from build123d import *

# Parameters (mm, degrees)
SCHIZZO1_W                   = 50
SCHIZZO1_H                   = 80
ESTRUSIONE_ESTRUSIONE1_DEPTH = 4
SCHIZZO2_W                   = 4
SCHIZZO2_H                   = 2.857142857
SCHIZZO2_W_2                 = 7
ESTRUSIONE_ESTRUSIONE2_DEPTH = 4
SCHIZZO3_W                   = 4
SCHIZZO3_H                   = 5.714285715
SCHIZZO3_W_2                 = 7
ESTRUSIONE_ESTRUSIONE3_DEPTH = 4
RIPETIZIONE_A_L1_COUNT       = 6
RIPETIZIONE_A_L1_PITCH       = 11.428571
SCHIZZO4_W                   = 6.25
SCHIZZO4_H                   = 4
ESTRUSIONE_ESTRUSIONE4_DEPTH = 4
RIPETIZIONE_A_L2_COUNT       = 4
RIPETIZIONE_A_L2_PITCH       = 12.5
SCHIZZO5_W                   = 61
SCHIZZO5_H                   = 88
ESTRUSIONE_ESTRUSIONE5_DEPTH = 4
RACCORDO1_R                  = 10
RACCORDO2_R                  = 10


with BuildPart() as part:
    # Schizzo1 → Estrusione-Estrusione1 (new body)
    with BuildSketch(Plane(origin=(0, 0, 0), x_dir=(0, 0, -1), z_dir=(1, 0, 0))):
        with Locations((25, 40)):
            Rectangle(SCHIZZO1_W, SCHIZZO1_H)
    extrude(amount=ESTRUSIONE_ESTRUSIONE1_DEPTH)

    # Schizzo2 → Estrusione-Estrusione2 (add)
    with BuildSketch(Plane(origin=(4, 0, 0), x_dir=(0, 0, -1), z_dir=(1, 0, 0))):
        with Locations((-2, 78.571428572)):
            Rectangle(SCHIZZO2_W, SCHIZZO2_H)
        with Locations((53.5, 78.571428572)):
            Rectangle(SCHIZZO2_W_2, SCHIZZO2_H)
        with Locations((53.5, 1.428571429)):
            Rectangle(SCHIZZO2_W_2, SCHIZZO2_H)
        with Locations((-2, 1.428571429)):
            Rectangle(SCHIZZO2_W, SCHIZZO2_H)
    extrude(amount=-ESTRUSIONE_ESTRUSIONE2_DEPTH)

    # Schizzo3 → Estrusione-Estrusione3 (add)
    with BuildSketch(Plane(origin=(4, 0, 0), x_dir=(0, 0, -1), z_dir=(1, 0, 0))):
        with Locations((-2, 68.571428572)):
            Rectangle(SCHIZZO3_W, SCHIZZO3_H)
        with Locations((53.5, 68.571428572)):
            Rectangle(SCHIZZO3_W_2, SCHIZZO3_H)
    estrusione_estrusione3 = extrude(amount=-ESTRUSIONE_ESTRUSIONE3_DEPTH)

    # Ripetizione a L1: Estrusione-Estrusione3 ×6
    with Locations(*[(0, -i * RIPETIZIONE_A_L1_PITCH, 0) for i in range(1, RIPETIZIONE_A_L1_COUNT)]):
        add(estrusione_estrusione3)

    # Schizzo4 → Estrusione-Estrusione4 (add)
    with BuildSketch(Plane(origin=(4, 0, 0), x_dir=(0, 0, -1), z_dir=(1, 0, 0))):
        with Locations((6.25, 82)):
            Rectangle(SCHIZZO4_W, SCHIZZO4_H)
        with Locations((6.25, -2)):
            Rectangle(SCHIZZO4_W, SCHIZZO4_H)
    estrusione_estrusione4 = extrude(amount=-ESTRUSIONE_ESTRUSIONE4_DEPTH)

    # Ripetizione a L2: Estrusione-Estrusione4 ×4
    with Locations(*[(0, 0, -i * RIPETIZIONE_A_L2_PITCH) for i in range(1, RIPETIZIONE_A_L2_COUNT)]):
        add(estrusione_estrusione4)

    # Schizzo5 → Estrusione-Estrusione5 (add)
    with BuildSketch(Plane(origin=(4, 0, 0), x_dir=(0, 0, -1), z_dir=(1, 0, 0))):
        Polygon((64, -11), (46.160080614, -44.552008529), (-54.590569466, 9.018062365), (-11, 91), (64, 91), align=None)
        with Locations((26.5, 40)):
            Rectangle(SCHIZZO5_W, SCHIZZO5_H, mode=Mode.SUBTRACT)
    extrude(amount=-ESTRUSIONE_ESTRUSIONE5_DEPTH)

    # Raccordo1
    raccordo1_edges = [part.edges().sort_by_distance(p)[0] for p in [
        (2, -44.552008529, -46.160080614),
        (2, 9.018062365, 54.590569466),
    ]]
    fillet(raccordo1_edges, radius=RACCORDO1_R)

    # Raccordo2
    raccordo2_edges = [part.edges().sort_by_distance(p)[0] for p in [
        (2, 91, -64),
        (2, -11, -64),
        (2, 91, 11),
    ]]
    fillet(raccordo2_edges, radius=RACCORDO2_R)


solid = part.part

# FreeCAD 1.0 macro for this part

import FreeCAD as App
import Part
import Sketcher
Q = App.Units.Quantity


def edges_at(feature, points):
    """Names of the edges that pass closest to the given points."""
    edges = feature.Shape.Edges
    near = lambda p: min(range(len(edges)), key=lambda i: edges[i].distToShape(Part.Vertex(*p))[0])
    return sorted({f"Edge{near(p) + 1}" for p in points})

doc = App.newDocument("Part")
body = doc.addObject("PartDesign::Body", "Body")

sketch1 = body.newObject("Sketcher::SketchObject", "Sketch")
sketch1.AttachmentSupport = (doc.getObject("YZ_Plane"), [""])
sketch1.MapMode = "FlatFace"
sketch1.addGeometry(Part.LineSegment(App.Vector(80, 0, 0), App.Vector(0, 0, 0)), False)
sketch1.addGeometry(Part.LineSegment(App.Vector(0, 0, 0), App.Vector(0, -50, 0)), False)
sketch1.addGeometry(Part.LineSegment(App.Vector(0, -50, 0), App.Vector(80, -50, 0)), False)
sketch1.addGeometry(Part.LineSegment(App.Vector(80, -50, 0), App.Vector(80, 0, 0)), False)
sketch1.addConstraint(Sketcher.Constraint("Coincident", 0, 2, 1, 1))
sketch1.addConstraint(Sketcher.Constraint("Coincident", 1, 2, 2, 1))
sketch1.addConstraint(Sketcher.Constraint("Coincident", 2, 2, 3, 1))
sketch1.addConstraint(Sketcher.Constraint("Coincident", 3, 2, 0, 1))
sketch1.addConstraint(Sketcher.Constraint("Horizontal", 0))
sketch1.addConstraint(Sketcher.Constraint("Vertical", 1))
sketch1.addConstraint(Sketcher.Constraint("Horizontal", 2))
sketch1.addConstraint(Sketcher.Constraint("Vertical", 3))
sketch1.addConstraint(Sketcher.Constraint("Coincident", 0, 2, -1, 1))
sketch1.addConstraint(Sketcher.Constraint("DistanceX", 0, 2, 0, 1, Q("80 mm")))
sketch1.addConstraint(Sketcher.Constraint("DistanceY", 1, 2, 1, 1, Q("50 mm")))
pad1 = body.newObject("PartDesign::Pad", "Pad")
pad1.Profile = sketch1
pad1.Length = 4

sketch2 = body.newObject("Sketcher::SketchObject", "Sketch001")
sketch2.AttachmentSupport = (doc.getObject("YZ_Plane"), [""])
sketch2.MapMode = "FlatFace"
sketch2.AttachmentOffset = App.Placement(App.Vector(0, 0, 4), App.Rotation())
sketch2.addGeometry(Part.LineSegment(App.Vector(80, 4, 0), App.Vector(77.1, 4, 0)), False)
sketch2.addGeometry(Part.LineSegment(App.Vector(77.1, 4, 0), App.Vector(77.1, 0, 0)), False)
sketch2.addGeometry(Part.LineSegment(App.Vector(77.1, 0, 0), App.Vector(80, 0, 0)), False)
sketch2.addGeometry(Part.LineSegment(App.Vector(80, 0, 0), App.Vector(80, 4, 0)), False)
sketch2.addGeometry(Part.LineSegment(App.Vector(80, -50, 0), App.Vector(77.1, -50, 0)), False)
sketch2.addGeometry(Part.LineSegment(App.Vector(77.1, -50, 0), App.Vector(77.1, -57, 0)), False)
sketch2.addGeometry(Part.LineSegment(App.Vector(77.1, -57, 0), App.Vector(80, -57, 0)), False)
sketch2.addGeometry(Part.LineSegment(App.Vector(80, -57, 0), App.Vector(80, -50, 0)), False)
sketch2.addGeometry(Part.LineSegment(App.Vector(2.9, -50, 0), App.Vector(0, -50, 0)), False)
sketch2.addGeometry(Part.LineSegment(App.Vector(0, -50, 0), App.Vector(0, -57, 0)), False)
sketch2.addGeometry(Part.LineSegment(App.Vector(0, -57, 0), App.Vector(2.9, -57, 0)), False)
sketch2.addGeometry(Part.LineSegment(App.Vector(2.9, -57, 0), App.Vector(2.9, -50, 0)), False)
sketch2.addGeometry(Part.LineSegment(App.Vector(2.9, 4, 0), App.Vector(0, 4, 0)), False)
sketch2.addGeometry(Part.LineSegment(App.Vector(0, 4, 0), App.Vector(0, 0, 0)), False)
sketch2.addGeometry(Part.LineSegment(App.Vector(0, 0, 0), App.Vector(2.9, 0, 0)), False)
sketch2.addGeometry(Part.LineSegment(App.Vector(2.9, 0, 0), App.Vector(2.9, 4, 0)), False)
sketch2.addConstraint(Sketcher.Constraint("Coincident", 0, 2, 1, 1))
sketch2.addConstraint(Sketcher.Constraint("Coincident", 1, 2, 2, 1))
sketch2.addConstraint(Sketcher.Constraint("Coincident", 2, 2, 3, 1))
sketch2.addConstraint(Sketcher.Constraint("Coincident", 3, 2, 0, 1))
sketch2.addConstraint(Sketcher.Constraint("Coincident", 4, 2, 5, 1))
sketch2.addConstraint(Sketcher.Constraint("Coincident", 5, 2, 6, 1))
sketch2.addConstraint(Sketcher.Constraint("Coincident", 6, 2, 7, 1))
sketch2.addConstraint(Sketcher.Constraint("Coincident", 7, 2, 4, 1))
sketch2.addConstraint(Sketcher.Constraint("Coincident", 8, 2, 9, 1))
sketch2.addConstraint(Sketcher.Constraint("Coincident", 9, 2, 10, 1))
sketch2.addConstraint(Sketcher.Constraint("Coincident", 10, 2, 11, 1))
sketch2.addConstraint(Sketcher.Constraint("Coincident", 11, 2, 8, 1))
sketch2.addConstraint(Sketcher.Constraint("Coincident", 12, 2, 13, 1))
sketch2.addConstraint(Sketcher.Constraint("Coincident", 13, 2, 14, 1))
sketch2.addConstraint(Sketcher.Constraint("Coincident", 14, 2, 15, 1))
sketch2.addConstraint(Sketcher.Constraint("Coincident", 15, 2, 12, 1))
sketch2.addConstraint(Sketcher.Constraint("Horizontal", 0))
sketch2.addConstraint(Sketcher.Constraint("Vertical", 1))
sketch2.addConstraint(Sketcher.Constraint("Horizontal", 2))
sketch2.addConstraint(Sketcher.Constraint("Vertical", 3))
sketch2.addConstraint(Sketcher.Constraint("Horizontal", 4))
sketch2.addConstraint(Sketcher.Constraint("Vertical", 5))
sketch2.addConstraint(Sketcher.Constraint("Horizontal", 6))
sketch2.addConstraint(Sketcher.Constraint("Vertical", 7))
sketch2.addConstraint(Sketcher.Constraint("Horizontal", 8))
sketch2.addConstraint(Sketcher.Constraint("Vertical", 9))
sketch2.addConstraint(Sketcher.Constraint("Horizontal", 10))
sketch2.addConstraint(Sketcher.Constraint("Vertical", 11))
sketch2.addConstraint(Sketcher.Constraint("Horizontal", 12))
sketch2.addConstraint(Sketcher.Constraint("Vertical", 13))
sketch2.addConstraint(Sketcher.Constraint("Horizontal", 14))
sketch2.addConstraint(Sketcher.Constraint("Vertical", 15))
sketch2.addConstraint(Sketcher.Constraint("Coincident", 13, 2, -1, 1))
sketch2.addConstraint(Sketcher.Constraint("PointOnObject", 1, 2, -1))
sketch2.addConstraint(Sketcher.Constraint("PointOnObject", 8, 2, -2))
sketch2.addConstraint(Sketcher.Constraint("Horizontal", 7, 2, 8, 2))
sketch2.addConstraint(Sketcher.Constraint("Horizontal", 6, 2, 9, 2))
sketch2.addConstraint(Sketcher.Constraint("Horizontal", 3, 2, 12, 2))
sketch2.addConstraint(Sketcher.Constraint("Vertical", 1, 2, 4, 2))
sketch2.addConstraint(Sketcher.Constraint("Vertical", 3, 2, 6, 2))
sketch2.addConstraint(Sketcher.Constraint("Vertical", 11, 2, 14, 2))
sketch2.addConstraint(Sketcher.Constraint("Equal", 6, 8))
sketch2.addConstraint(Sketcher.Constraint("DistanceY", 1, 2, 1, 1, Q("4 mm")))
sketch2.addConstraint(Sketcher.Constraint("DistanceY", 5, 2, 5, 1, Q("7 mm")))
sketch2.addConstraint(Sketcher.Constraint("DistanceX", -1, 1, 2, 2, Q("80 mm")))
sketch2.addConstraint(Sketcher.Constraint("DistanceY", 4, 2, -1, 1, Q("50 mm")))
sketch2.addConstraint(Sketcher.Constraint("DistanceX", 0, 2, 0, 1, Q("2.857143 mm")))
pad2 = body.newObject("PartDesign::Pad", "Pad001")
pad2.Profile = sketch2
pad2.Length = 4
pad2.Reversed = True

sketch3 = body.newObject("Sketcher::SketchObject", "Sketch002")
sketch3.AttachmentSupport = (doc.getObject("YZ_Plane"), [""])
sketch3.MapMode = "FlatFace"
sketch3.AttachmentOffset = App.Placement(App.Vector(0, 0, 4), App.Rotation())
sketch3.addGeometry(Part.LineSegment(App.Vector(71.4, 4, 0), App.Vector(65.7, 4, 0)), False)
sketch3.addGeometry(Part.LineSegment(App.Vector(65.7, 4, 0), App.Vector(65.7, 0, 0)), False)
sketch3.addGeometry(Part.LineSegment(App.Vector(65.7, 0, 0), App.Vector(71.4, 0, 0)), False)
sketch3.addGeometry(Part.LineSegment(App.Vector(71.4, 0, 0), App.Vector(71.4, 4, 0)), False)
sketch3.addGeometry(Part.LineSegment(App.Vector(71.4, -50, 0), App.Vector(65.7, -50, 0)), False)
sketch3.addGeometry(Part.LineSegment(App.Vector(65.7, -50, 0), App.Vector(65.7, -57, 0)), False)
sketch3.addGeometry(Part.LineSegment(App.Vector(65.7, -57, 0), App.Vector(71.4, -57, 0)), False)
sketch3.addGeometry(Part.LineSegment(App.Vector(71.4, -57, 0), App.Vector(71.4, -50, 0)), False)
sketch3.addConstraint(Sketcher.Constraint("Coincident", 0, 2, 1, 1))
sketch3.addConstraint(Sketcher.Constraint("Coincident", 1, 2, 2, 1))
sketch3.addConstraint(Sketcher.Constraint("Coincident", 2, 2, 3, 1))
sketch3.addConstraint(Sketcher.Constraint("Coincident", 3, 2, 0, 1))
sketch3.addConstraint(Sketcher.Constraint("Coincident", 4, 2, 5, 1))
sketch3.addConstraint(Sketcher.Constraint("Coincident", 5, 2, 6, 1))
sketch3.addConstraint(Sketcher.Constraint("Coincident", 6, 2, 7, 1))
sketch3.addConstraint(Sketcher.Constraint("Coincident", 7, 2, 4, 1))
sketch3.addConstraint(Sketcher.Constraint("Horizontal", 0))
sketch3.addConstraint(Sketcher.Constraint("Vertical", 1))
sketch3.addConstraint(Sketcher.Constraint("Horizontal", 2))
sketch3.addConstraint(Sketcher.Constraint("Vertical", 3))
sketch3.addConstraint(Sketcher.Constraint("Horizontal", 4))
sketch3.addConstraint(Sketcher.Constraint("Vertical", 5))
sketch3.addConstraint(Sketcher.Constraint("Horizontal", 6))
sketch3.addConstraint(Sketcher.Constraint("Vertical", 7))
sketch3.addConstraint(Sketcher.Constraint("PointOnObject", 1, 2, -1))
sketch3.addConstraint(Sketcher.Constraint("Vertical", 1, 2, 4, 2))
sketch3.addConstraint(Sketcher.Constraint("Vertical", 3, 2, 6, 2))
sketch3.addConstraint(Sketcher.Constraint("DistanceY", 1, 2, 1, 1, Q("4 mm")))
sketch3.addConstraint(Sketcher.Constraint("DistanceY", 5, 2, 5, 1, Q("7 mm")))
sketch3.addConstraint(Sketcher.Constraint("DistanceY", 4, 2, -1, 1, Q("50 mm")))
sketch3.addConstraint(Sketcher.Constraint("DistanceX", 0, 2, 0, 1, Q("5.714286 mm")))
sketch3.addConstraint(Sketcher.Constraint("DistanceX", -1, 1, 2, 2, Q("71.428571 mm")))
pad3 = body.newObject("PartDesign::Pad", "Pad002")
pad3.Profile = sketch3
pad3.Length = 4
pad3.Reversed = True
doc.recompute()

linearpattern = body.newObject("PartDesign::LinearPattern", "LinearPattern")
linearpattern.Originals = [pad3]
linearpattern.Direction = (doc.getObject("Y_Axis"), [""])
linearpattern.Mode = "offset"
linearpattern.Offset = 11.428571
linearpattern.Occurrences = 6
linearpattern.Reversed = True
body.Tip = linearpattern

sketch4 = body.newObject("Sketcher::SketchObject", "Sketch003")
sketch4.AttachmentSupport = (doc.getObject("YZ_Plane"), [""])
sketch4.MapMode = "FlatFace"
sketch4.AttachmentOffset = App.Placement(App.Vector(0, 0, 4), App.Rotation())
sketch4.addGeometry(Part.LineSegment(App.Vector(84, -3.1, 0), App.Vector(80, -3.1, 0)), False)
sketch4.addGeometry(Part.LineSegment(App.Vector(80, -3.1, 0), App.Vector(80, -9.4, 0)), False)
sketch4.addGeometry(Part.LineSegment(App.Vector(80, -9.4, 0), App.Vector(84, -9.4, 0)), False)
sketch4.addGeometry(Part.LineSegment(App.Vector(84, -9.4, 0), App.Vector(84, -3.1, 0)), False)
sketch4.addGeometry(Part.LineSegment(App.Vector(0, -3.1, 0), App.Vector(-4, -3.1, 0)), False)
sketch4.addGeometry(Part.LineSegment(App.Vector(-4, -3.1, 0), App.Vector(-4, -9.4, 0)), False)
sketch4.addGeometry(Part.LineSegment(App.Vector(-4, -9.4, 0), App.Vector(0, -9.4, 0)), False)
sketch4.addGeometry(Part.LineSegment(App.Vector(0, -9.4, 0), App.Vector(0, -3.1, 0)), False)
sketch4.addConstraint(Sketcher.Constraint("Coincident", 0, 2, 1, 1))
sketch4.addConstraint(Sketcher.Constraint("Coincident", 1, 2, 2, 1))
sketch4.addConstraint(Sketcher.Constraint("Coincident", 2, 2, 3, 1))
sketch4.addConstraint(Sketcher.Constraint("Coincident", 3, 2, 0, 1))
sketch4.addConstraint(Sketcher.Constraint("Coincident", 4, 2, 5, 1))
sketch4.addConstraint(Sketcher.Constraint("Coincident", 5, 2, 6, 1))
sketch4.addConstraint(Sketcher.Constraint("Coincident", 6, 2, 7, 1))
sketch4.addConstraint(Sketcher.Constraint("Coincident", 7, 2, 4, 1))
sketch4.addConstraint(Sketcher.Constraint("Horizontal", 0))
sketch4.addConstraint(Sketcher.Constraint("Vertical", 1))
sketch4.addConstraint(Sketcher.Constraint("Horizontal", 2))
sketch4.addConstraint(Sketcher.Constraint("Vertical", 3))
sketch4.addConstraint(Sketcher.Constraint("Horizontal", 4))
sketch4.addConstraint(Sketcher.Constraint("Vertical", 5))
sketch4.addConstraint(Sketcher.Constraint("Horizontal", 6))
sketch4.addConstraint(Sketcher.Constraint("Vertical", 7))
sketch4.addConstraint(Sketcher.Constraint("PointOnObject", 6, 2, -2))
sketch4.addConstraint(Sketcher.Constraint("Horizontal", 3, 2, 4, 2))
sketch4.addConstraint(Sketcher.Constraint("Horizontal", 2, 2, 5, 2))
sketch4.addConstraint(Sketcher.Constraint("Equal", 2, 4))
sketch4.addConstraint(Sketcher.Constraint("DistanceX", 0, 2, 0, 1, Q("4 mm")))
sketch4.addConstraint(Sketcher.Constraint("DistanceX", -1, 1, 0, 2, Q("80 mm")))
sketch4.addConstraint(Sketcher.Constraint("DistanceY", 1, 2, 1, 1, Q("6.25 mm")))
sketch4.addConstraint(Sketcher.Constraint("DistanceY", 0, 2, -1, 1, Q("3.125 mm")))
pad4 = body.newObject("PartDesign::Pad", "Pad003")
pad4.Profile = sketch4
pad4.Length = 4
pad4.Reversed = True
doc.recompute()

linearpattern2 = body.newObject("PartDesign::LinearPattern", "LinearPattern001")
linearpattern2.Originals = [pad4]
linearpattern2.Direction = (doc.getObject("Z_Axis"), [""])
linearpattern2.Mode = "offset"
linearpattern2.Offset = 12.5
linearpattern2.Occurrences = 4
linearpattern2.Reversed = True
body.Tip = linearpattern2

sketch5 = body.newObject("Sketcher::SketchObject", "Sketch004")
sketch5.AttachmentSupport = (doc.getObject("YZ_Plane"), [""])
sketch5.MapMode = "FlatFace"
sketch5.AttachmentOffset = App.Placement(App.Vector(0, 0, 4), App.Rotation())
sketch5.addGeometry(Part.LineSegment(App.Vector(-45, -46, 0), App.Vector(-11, -64, 0)), False)
sketch5.addGeometry(Part.LineSegment(App.Vector(-11, -64, 0), App.Vector(91, -64, 0)), False)
sketch5.addGeometry(Part.LineSegment(App.Vector(91, -64, 0), App.Vector(91, 11, 0)), False)
sketch5.addGeometry(Part.LineSegment(App.Vector(91, 11, 0), App.Vector(9, 55, 0)), False)
sketch5.addGeometry(Part.LineSegment(App.Vector(9, 55, 0), App.Vector(-45, -46, 0)), False)
sketch5.addGeometry(Part.LineSegment(App.Vector(-4, 4, 0), App.Vector(84, 4, 0)), False)
sketch5.addGeometry(Part.LineSegment(App.Vector(84, 4, 0), App.Vector(84, -57, 0)), False)
sketch5.addGeometry(Part.LineSegment(App.Vector(84, -57, 0), App.Vector(-4, -57, 0)), False)
sketch5.addGeometry(Part.LineSegment(App.Vector(-4, -57, 0), App.Vector(-4, 4, 0)), False)
sketch5.addConstraint(Sketcher.Constraint("Coincident", 0, 2, 1, 1))
sketch5.addConstraint(Sketcher.Constraint("Coincident", 1, 2, 2, 1))
sketch5.addConstraint(Sketcher.Constraint("Coincident", 2, 2, 3, 1))
sketch5.addConstraint(Sketcher.Constraint("Coincident", 3, 2, 4, 1))
sketch5.addConstraint(Sketcher.Constraint("Coincident", 4, 2, 0, 1))
sketch5.addConstraint(Sketcher.Constraint("Coincident", 5, 2, 6, 1))
sketch5.addConstraint(Sketcher.Constraint("Coincident", 6, 2, 7, 1))
sketch5.addConstraint(Sketcher.Constraint("Coincident", 7, 2, 8, 1))
sketch5.addConstraint(Sketcher.Constraint("Coincident", 8, 2, 5, 1))
sketch5.addConstraint(Sketcher.Constraint("Horizontal", 1))
sketch5.addConstraint(Sketcher.Constraint("Vertical", 2))
sketch5.addConstraint(Sketcher.Constraint("Horizontal", 5))
sketch5.addConstraint(Sketcher.Constraint("Vertical", 6))
sketch5.addConstraint(Sketcher.Constraint("Horizontal", 7))
sketch5.addConstraint(Sketcher.Constraint("Vertical", 8))
sketch5.addConstraint(Sketcher.Constraint("Parallel", 0, 3))
sketch5.addConstraint(Sketcher.Constraint("Perpendicular", 3, 4))
sketch5.addConstraint(Sketcher.Constraint("DistanceX", 1, 1, 1, 2, Q("102 mm")))
sketch5.addConstraint(Sketcher.Constraint("DistanceX", 5, 1, 5, 2, Q("88 mm")))
sketch5.addConstraint(Sketcher.Constraint("DistanceY", 2, 1, 2, 2, Q("75 mm")))
sketch5.addConstraint(Sketcher.Constraint("DistanceY", 6, 2, 6, 1, Q("61 mm")))
sketch5.addConstraint(Sketcher.Constraint("Angle", 0, Q("-28 deg")))
sketch5.addConstraint(Sketcher.Constraint("Distance", 0, Q("38 mm")))
sketch5.addConstraint(Sketcher.Constraint("DistanceX", 0, 2, -1, 1, Q("11 mm")))
sketch5.addConstraint(Sketcher.Constraint("DistanceY", 0, 2, -1, 1, Q("64 mm")))
sketch5.addConstraint(Sketcher.Constraint("DistanceX", -1, 1, 5, 2, Q("84 mm")))
sketch5.addConstraint(Sketcher.Constraint("DistanceY", -1, 1, 5, 2, Q("4 mm")))
pad5 = body.newObject("PartDesign::Pad", "Pad004")
pad5.Profile = sketch5
pad5.Length = 4
pad5.Reversed = True
doc.recompute()

fillet = body.newObject("PartDesign::Fillet", "Fillet")
fillet.Base = (pad5, edges_at(pad5, [(2, -44.552, -46.16), (2, 9.018, 54.591)]))
fillet.Radius = 10
doc.recompute()

fillet2 = body.newObject("PartDesign::Fillet", "Fillet001")
fillet2.Base = (fillet, edges_at(fillet, [(2, 91, -64), (2, -11, -64), (2, 91, 11)]))
fillet2.Radius = 10

doc.recompute()
